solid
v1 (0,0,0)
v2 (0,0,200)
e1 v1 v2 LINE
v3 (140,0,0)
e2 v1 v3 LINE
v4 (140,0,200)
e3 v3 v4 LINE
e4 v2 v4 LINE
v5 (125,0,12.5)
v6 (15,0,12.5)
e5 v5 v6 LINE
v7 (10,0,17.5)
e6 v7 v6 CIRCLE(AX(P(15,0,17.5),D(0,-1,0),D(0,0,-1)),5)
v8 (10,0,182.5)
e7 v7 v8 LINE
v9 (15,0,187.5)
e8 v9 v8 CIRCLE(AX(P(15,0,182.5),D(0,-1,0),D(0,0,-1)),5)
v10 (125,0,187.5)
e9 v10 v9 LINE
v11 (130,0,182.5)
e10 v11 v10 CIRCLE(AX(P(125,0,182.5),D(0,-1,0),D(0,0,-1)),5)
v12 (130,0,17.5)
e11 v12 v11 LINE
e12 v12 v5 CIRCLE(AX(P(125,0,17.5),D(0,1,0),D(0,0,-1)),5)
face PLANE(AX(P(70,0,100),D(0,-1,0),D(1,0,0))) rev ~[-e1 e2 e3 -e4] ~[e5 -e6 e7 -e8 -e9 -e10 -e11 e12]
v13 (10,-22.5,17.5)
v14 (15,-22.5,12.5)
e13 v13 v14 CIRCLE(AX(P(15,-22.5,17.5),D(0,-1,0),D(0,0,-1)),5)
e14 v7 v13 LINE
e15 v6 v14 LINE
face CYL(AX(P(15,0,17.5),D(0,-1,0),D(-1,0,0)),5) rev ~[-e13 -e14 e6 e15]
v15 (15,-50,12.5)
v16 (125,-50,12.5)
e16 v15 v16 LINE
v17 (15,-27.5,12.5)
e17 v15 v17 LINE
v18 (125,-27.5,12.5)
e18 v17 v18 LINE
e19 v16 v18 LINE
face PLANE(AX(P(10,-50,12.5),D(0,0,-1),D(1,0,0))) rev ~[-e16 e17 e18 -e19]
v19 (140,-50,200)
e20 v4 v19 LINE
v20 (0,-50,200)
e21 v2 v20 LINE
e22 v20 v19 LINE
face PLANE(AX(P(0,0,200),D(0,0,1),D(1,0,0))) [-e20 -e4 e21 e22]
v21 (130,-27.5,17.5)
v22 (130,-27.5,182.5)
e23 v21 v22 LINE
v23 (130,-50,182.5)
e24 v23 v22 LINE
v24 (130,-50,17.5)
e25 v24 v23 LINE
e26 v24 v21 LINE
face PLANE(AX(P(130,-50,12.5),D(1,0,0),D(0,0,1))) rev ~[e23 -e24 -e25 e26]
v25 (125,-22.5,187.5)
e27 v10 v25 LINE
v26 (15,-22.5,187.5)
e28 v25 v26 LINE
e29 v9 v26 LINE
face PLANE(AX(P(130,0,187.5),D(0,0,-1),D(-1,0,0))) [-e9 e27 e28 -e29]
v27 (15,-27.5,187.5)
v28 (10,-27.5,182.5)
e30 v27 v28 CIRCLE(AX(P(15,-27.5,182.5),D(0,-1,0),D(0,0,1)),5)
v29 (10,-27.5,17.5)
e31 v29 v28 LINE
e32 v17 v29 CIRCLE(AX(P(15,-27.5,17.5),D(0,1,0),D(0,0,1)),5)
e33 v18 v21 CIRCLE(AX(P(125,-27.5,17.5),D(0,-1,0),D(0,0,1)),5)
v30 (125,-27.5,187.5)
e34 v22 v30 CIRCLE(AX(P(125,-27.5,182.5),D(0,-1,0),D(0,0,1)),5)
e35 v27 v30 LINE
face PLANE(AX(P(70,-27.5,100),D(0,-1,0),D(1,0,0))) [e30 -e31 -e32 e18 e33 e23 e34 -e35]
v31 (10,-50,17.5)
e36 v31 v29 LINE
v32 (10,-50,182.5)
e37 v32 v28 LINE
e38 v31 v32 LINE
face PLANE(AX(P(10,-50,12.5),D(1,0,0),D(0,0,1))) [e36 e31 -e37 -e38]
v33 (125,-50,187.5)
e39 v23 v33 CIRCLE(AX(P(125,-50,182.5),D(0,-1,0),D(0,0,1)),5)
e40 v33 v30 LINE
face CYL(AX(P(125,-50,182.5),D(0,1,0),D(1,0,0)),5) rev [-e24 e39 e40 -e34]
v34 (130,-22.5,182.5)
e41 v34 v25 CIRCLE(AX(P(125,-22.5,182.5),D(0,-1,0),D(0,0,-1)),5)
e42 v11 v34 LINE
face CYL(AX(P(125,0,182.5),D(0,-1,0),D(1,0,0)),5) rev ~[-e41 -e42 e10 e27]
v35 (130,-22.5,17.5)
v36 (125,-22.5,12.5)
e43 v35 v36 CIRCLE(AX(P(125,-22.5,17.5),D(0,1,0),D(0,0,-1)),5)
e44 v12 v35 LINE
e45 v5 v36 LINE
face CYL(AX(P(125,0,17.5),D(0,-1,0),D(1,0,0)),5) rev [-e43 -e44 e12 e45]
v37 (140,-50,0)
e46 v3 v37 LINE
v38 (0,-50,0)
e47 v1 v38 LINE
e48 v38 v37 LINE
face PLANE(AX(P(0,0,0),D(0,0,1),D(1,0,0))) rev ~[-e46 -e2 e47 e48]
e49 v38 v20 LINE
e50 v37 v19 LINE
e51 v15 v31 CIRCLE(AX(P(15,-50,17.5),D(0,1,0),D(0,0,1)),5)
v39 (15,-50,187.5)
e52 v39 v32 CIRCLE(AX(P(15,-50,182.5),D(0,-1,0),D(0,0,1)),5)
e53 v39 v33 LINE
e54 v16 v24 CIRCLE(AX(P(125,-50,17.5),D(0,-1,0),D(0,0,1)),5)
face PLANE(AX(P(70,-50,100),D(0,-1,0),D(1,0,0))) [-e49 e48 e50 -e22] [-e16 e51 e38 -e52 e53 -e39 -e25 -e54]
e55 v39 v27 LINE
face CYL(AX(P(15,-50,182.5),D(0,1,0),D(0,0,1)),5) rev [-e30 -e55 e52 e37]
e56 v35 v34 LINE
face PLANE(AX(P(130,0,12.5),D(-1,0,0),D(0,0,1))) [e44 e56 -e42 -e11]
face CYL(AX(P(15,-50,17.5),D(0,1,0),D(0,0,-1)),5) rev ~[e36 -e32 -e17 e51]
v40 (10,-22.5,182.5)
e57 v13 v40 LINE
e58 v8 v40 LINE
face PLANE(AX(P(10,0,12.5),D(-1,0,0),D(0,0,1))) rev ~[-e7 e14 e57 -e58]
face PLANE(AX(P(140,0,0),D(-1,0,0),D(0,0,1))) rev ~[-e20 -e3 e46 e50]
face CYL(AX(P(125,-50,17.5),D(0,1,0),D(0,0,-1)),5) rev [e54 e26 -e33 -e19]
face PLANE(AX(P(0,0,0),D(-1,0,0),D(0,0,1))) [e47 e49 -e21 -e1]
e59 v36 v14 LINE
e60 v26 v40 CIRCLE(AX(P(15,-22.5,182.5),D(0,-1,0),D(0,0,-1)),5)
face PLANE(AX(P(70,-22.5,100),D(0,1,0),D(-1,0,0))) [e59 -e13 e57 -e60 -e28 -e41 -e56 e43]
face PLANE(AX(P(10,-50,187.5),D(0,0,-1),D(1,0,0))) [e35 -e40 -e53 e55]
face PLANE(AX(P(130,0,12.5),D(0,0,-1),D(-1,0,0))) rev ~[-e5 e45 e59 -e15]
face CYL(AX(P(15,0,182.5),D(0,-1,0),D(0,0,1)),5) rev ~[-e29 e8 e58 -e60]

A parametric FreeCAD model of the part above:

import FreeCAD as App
import Part
import Sketcher
from FreeCAD import Vector
Q = App.Units.Quantity


def edges_at(feature, points):
    """Names of the edges that pass closest to the given points."""
    edges = feature.Shape.Edges
    near = lambda p: min(range(len(edges)), key=lambda i: edges[i].distToShape(Part.Vertex(*p))[0])
    return sorted({f"Edge{near(p) + 1}" for p in points})


def add_polygon(sketch, points):
    """Adds a closed chain of lines whose ends are joined by coincident constraints."""
    first, n = sketch.GeometryCount, len(points)
    for a, b in zip(points, points[1:] + points[:1]):
        sketch.addGeometry(Part.LineSegment(App.Vector(*a, 0), App.Vector(*b, 0)), False)
    for i in range(n):
        sketch.addConstraint(Sketcher.Constraint("Coincident", first + i, 2, first + (i + 1) % n, 1))

doc = App.newDocument("Part")
body = doc.addObject("PartDesign::Body", "Body")

sketch1 = doc.addObject("Sketcher::SketchObject", "Sketch")
body.addObject(sketch1)
sketch1.AttachmentSupport = (doc.XZ_Plane, [""])
sketch1.MapMode = "FlatFace"
add_polygon(sketch1, [(0, 200), (0, 0), (140, 0), (140, 200)])
sketch1.addConstraint([
    Sketcher.Constraint("Vertical", 0),
    Sketcher.Constraint("Horizontal", 1),
    Sketcher.Constraint("Vertical", 2),
    Sketcher.Constraint("Horizontal", 3),
    Sketcher.Constraint("Coincident", 0, 2, -1, 1),
    Sketcher.Constraint("DistanceX", 1, 1, 1, 2, Q("140 mm")),
    Sketcher.Constraint("DistanceY", 0, 2, 0, 1, Q("200 mm")),
])
pad1 = doc.addObject("PartDesign::Pad", "Pad")
body.addObject(pad1)
pad1.Profile = sketch1
pad1.Length = 50

sketch2 = doc.addObject("Sketcher::SketchObject", "Sketch001")
body.addObject(sketch2)
sketch2.AttachmentSupport = (doc.XZ_Plane, [""])
sketch2.MapMode = "FlatFace"
sketch2.AttachmentOffset = App.Placement(Vector(0, 0, 50), App.Rotation())
add_polygon(sketch2, [(10, 187.5), (10, 12.5), (130, 12.5), (130, 187.5)])
sketch2.addConstraint([
    Sketcher.Constraint("Vertical", 0),
    Sketcher.Constraint("Horizontal", 1),
    Sketcher.Constraint("Vertical", 2),
    Sketcher.Constraint("Horizontal", 3),
    Sketcher.Constraint("DistanceX", 1, 1, 1, 2, Q("120 mm")),
    Sketcher.Constraint("DistanceY", 0, 2, 0, 1, Q("175 mm")),
    Sketcher.Constraint("DistanceX", -1, 1, 0, 2, Q("10 mm")),
    Sketcher.Constraint("DistanceY", -1, 1, 0, 2, Q("12.5 mm")),
])
pocket1 = doc.addObject("PartDesign::Pocket", "Pocket")
body.addObject(pocket1)
pocket1.Profile = sketch2
pocket1.Length = 22.5

sketch3 = doc.addObject("Sketcher::SketchObject", "Sketch002")
body.addObject(sketch3)
sketch3.AttachmentSupport = (doc.XZ_Plane, [""])
sketch3.MapMode = "FlatFace"
add_polygon(sketch3, [(130, 187.5), (130, 12.5), (10, 12.5), (10, 187.5)])
sketch3.addConstraint([
    Sketcher.Constraint("Vertical", 0),
    Sketcher.Constraint("Horizontal", 1),
    Sketcher.Constraint("Vertical", 2),
    Sketcher.Constraint("Horizontal", 3),
    Sketcher.Constraint("DistanceX", 1, 2, 1, 1, Q("120 mm")),
    Sketcher.Constraint("DistanceY", 0, 2, 0, 1, Q("175 mm")),
    Sketcher.Constraint("DistanceX", -1, 1, 0, 2, Q("130 mm")),
    Sketcher.Constraint("DistanceY", -1, 1, 0, 2, Q("12.5 mm")),
])
pocket2 = doc.addObject("PartDesign::Pocket", "Pocket001")
body.addObject(pocket2)
pocket2.Profile = sketch3
pocket2.Length = 22.5
pocket2.Reversed = True
doc.recompute()

fillet = doc.addObject("PartDesign::Fillet", "Fillet")
body.addObject(fillet)
fillet.Base = (pocket2, edges_at(pocket2, [
    (130, -38.75, 187.5),
    (10, -38.75, 187.5),
    (10, -38.75, 12.5),
    (130, -38.75, 12.5),
    (130, -11.25, 187.5),
    (10, -11.25, 187.5),
    (10, -11.25, 12.5),
    (130, -11.25, 12.5),
]))
fillet.Radius = 5

doc.recompute()
